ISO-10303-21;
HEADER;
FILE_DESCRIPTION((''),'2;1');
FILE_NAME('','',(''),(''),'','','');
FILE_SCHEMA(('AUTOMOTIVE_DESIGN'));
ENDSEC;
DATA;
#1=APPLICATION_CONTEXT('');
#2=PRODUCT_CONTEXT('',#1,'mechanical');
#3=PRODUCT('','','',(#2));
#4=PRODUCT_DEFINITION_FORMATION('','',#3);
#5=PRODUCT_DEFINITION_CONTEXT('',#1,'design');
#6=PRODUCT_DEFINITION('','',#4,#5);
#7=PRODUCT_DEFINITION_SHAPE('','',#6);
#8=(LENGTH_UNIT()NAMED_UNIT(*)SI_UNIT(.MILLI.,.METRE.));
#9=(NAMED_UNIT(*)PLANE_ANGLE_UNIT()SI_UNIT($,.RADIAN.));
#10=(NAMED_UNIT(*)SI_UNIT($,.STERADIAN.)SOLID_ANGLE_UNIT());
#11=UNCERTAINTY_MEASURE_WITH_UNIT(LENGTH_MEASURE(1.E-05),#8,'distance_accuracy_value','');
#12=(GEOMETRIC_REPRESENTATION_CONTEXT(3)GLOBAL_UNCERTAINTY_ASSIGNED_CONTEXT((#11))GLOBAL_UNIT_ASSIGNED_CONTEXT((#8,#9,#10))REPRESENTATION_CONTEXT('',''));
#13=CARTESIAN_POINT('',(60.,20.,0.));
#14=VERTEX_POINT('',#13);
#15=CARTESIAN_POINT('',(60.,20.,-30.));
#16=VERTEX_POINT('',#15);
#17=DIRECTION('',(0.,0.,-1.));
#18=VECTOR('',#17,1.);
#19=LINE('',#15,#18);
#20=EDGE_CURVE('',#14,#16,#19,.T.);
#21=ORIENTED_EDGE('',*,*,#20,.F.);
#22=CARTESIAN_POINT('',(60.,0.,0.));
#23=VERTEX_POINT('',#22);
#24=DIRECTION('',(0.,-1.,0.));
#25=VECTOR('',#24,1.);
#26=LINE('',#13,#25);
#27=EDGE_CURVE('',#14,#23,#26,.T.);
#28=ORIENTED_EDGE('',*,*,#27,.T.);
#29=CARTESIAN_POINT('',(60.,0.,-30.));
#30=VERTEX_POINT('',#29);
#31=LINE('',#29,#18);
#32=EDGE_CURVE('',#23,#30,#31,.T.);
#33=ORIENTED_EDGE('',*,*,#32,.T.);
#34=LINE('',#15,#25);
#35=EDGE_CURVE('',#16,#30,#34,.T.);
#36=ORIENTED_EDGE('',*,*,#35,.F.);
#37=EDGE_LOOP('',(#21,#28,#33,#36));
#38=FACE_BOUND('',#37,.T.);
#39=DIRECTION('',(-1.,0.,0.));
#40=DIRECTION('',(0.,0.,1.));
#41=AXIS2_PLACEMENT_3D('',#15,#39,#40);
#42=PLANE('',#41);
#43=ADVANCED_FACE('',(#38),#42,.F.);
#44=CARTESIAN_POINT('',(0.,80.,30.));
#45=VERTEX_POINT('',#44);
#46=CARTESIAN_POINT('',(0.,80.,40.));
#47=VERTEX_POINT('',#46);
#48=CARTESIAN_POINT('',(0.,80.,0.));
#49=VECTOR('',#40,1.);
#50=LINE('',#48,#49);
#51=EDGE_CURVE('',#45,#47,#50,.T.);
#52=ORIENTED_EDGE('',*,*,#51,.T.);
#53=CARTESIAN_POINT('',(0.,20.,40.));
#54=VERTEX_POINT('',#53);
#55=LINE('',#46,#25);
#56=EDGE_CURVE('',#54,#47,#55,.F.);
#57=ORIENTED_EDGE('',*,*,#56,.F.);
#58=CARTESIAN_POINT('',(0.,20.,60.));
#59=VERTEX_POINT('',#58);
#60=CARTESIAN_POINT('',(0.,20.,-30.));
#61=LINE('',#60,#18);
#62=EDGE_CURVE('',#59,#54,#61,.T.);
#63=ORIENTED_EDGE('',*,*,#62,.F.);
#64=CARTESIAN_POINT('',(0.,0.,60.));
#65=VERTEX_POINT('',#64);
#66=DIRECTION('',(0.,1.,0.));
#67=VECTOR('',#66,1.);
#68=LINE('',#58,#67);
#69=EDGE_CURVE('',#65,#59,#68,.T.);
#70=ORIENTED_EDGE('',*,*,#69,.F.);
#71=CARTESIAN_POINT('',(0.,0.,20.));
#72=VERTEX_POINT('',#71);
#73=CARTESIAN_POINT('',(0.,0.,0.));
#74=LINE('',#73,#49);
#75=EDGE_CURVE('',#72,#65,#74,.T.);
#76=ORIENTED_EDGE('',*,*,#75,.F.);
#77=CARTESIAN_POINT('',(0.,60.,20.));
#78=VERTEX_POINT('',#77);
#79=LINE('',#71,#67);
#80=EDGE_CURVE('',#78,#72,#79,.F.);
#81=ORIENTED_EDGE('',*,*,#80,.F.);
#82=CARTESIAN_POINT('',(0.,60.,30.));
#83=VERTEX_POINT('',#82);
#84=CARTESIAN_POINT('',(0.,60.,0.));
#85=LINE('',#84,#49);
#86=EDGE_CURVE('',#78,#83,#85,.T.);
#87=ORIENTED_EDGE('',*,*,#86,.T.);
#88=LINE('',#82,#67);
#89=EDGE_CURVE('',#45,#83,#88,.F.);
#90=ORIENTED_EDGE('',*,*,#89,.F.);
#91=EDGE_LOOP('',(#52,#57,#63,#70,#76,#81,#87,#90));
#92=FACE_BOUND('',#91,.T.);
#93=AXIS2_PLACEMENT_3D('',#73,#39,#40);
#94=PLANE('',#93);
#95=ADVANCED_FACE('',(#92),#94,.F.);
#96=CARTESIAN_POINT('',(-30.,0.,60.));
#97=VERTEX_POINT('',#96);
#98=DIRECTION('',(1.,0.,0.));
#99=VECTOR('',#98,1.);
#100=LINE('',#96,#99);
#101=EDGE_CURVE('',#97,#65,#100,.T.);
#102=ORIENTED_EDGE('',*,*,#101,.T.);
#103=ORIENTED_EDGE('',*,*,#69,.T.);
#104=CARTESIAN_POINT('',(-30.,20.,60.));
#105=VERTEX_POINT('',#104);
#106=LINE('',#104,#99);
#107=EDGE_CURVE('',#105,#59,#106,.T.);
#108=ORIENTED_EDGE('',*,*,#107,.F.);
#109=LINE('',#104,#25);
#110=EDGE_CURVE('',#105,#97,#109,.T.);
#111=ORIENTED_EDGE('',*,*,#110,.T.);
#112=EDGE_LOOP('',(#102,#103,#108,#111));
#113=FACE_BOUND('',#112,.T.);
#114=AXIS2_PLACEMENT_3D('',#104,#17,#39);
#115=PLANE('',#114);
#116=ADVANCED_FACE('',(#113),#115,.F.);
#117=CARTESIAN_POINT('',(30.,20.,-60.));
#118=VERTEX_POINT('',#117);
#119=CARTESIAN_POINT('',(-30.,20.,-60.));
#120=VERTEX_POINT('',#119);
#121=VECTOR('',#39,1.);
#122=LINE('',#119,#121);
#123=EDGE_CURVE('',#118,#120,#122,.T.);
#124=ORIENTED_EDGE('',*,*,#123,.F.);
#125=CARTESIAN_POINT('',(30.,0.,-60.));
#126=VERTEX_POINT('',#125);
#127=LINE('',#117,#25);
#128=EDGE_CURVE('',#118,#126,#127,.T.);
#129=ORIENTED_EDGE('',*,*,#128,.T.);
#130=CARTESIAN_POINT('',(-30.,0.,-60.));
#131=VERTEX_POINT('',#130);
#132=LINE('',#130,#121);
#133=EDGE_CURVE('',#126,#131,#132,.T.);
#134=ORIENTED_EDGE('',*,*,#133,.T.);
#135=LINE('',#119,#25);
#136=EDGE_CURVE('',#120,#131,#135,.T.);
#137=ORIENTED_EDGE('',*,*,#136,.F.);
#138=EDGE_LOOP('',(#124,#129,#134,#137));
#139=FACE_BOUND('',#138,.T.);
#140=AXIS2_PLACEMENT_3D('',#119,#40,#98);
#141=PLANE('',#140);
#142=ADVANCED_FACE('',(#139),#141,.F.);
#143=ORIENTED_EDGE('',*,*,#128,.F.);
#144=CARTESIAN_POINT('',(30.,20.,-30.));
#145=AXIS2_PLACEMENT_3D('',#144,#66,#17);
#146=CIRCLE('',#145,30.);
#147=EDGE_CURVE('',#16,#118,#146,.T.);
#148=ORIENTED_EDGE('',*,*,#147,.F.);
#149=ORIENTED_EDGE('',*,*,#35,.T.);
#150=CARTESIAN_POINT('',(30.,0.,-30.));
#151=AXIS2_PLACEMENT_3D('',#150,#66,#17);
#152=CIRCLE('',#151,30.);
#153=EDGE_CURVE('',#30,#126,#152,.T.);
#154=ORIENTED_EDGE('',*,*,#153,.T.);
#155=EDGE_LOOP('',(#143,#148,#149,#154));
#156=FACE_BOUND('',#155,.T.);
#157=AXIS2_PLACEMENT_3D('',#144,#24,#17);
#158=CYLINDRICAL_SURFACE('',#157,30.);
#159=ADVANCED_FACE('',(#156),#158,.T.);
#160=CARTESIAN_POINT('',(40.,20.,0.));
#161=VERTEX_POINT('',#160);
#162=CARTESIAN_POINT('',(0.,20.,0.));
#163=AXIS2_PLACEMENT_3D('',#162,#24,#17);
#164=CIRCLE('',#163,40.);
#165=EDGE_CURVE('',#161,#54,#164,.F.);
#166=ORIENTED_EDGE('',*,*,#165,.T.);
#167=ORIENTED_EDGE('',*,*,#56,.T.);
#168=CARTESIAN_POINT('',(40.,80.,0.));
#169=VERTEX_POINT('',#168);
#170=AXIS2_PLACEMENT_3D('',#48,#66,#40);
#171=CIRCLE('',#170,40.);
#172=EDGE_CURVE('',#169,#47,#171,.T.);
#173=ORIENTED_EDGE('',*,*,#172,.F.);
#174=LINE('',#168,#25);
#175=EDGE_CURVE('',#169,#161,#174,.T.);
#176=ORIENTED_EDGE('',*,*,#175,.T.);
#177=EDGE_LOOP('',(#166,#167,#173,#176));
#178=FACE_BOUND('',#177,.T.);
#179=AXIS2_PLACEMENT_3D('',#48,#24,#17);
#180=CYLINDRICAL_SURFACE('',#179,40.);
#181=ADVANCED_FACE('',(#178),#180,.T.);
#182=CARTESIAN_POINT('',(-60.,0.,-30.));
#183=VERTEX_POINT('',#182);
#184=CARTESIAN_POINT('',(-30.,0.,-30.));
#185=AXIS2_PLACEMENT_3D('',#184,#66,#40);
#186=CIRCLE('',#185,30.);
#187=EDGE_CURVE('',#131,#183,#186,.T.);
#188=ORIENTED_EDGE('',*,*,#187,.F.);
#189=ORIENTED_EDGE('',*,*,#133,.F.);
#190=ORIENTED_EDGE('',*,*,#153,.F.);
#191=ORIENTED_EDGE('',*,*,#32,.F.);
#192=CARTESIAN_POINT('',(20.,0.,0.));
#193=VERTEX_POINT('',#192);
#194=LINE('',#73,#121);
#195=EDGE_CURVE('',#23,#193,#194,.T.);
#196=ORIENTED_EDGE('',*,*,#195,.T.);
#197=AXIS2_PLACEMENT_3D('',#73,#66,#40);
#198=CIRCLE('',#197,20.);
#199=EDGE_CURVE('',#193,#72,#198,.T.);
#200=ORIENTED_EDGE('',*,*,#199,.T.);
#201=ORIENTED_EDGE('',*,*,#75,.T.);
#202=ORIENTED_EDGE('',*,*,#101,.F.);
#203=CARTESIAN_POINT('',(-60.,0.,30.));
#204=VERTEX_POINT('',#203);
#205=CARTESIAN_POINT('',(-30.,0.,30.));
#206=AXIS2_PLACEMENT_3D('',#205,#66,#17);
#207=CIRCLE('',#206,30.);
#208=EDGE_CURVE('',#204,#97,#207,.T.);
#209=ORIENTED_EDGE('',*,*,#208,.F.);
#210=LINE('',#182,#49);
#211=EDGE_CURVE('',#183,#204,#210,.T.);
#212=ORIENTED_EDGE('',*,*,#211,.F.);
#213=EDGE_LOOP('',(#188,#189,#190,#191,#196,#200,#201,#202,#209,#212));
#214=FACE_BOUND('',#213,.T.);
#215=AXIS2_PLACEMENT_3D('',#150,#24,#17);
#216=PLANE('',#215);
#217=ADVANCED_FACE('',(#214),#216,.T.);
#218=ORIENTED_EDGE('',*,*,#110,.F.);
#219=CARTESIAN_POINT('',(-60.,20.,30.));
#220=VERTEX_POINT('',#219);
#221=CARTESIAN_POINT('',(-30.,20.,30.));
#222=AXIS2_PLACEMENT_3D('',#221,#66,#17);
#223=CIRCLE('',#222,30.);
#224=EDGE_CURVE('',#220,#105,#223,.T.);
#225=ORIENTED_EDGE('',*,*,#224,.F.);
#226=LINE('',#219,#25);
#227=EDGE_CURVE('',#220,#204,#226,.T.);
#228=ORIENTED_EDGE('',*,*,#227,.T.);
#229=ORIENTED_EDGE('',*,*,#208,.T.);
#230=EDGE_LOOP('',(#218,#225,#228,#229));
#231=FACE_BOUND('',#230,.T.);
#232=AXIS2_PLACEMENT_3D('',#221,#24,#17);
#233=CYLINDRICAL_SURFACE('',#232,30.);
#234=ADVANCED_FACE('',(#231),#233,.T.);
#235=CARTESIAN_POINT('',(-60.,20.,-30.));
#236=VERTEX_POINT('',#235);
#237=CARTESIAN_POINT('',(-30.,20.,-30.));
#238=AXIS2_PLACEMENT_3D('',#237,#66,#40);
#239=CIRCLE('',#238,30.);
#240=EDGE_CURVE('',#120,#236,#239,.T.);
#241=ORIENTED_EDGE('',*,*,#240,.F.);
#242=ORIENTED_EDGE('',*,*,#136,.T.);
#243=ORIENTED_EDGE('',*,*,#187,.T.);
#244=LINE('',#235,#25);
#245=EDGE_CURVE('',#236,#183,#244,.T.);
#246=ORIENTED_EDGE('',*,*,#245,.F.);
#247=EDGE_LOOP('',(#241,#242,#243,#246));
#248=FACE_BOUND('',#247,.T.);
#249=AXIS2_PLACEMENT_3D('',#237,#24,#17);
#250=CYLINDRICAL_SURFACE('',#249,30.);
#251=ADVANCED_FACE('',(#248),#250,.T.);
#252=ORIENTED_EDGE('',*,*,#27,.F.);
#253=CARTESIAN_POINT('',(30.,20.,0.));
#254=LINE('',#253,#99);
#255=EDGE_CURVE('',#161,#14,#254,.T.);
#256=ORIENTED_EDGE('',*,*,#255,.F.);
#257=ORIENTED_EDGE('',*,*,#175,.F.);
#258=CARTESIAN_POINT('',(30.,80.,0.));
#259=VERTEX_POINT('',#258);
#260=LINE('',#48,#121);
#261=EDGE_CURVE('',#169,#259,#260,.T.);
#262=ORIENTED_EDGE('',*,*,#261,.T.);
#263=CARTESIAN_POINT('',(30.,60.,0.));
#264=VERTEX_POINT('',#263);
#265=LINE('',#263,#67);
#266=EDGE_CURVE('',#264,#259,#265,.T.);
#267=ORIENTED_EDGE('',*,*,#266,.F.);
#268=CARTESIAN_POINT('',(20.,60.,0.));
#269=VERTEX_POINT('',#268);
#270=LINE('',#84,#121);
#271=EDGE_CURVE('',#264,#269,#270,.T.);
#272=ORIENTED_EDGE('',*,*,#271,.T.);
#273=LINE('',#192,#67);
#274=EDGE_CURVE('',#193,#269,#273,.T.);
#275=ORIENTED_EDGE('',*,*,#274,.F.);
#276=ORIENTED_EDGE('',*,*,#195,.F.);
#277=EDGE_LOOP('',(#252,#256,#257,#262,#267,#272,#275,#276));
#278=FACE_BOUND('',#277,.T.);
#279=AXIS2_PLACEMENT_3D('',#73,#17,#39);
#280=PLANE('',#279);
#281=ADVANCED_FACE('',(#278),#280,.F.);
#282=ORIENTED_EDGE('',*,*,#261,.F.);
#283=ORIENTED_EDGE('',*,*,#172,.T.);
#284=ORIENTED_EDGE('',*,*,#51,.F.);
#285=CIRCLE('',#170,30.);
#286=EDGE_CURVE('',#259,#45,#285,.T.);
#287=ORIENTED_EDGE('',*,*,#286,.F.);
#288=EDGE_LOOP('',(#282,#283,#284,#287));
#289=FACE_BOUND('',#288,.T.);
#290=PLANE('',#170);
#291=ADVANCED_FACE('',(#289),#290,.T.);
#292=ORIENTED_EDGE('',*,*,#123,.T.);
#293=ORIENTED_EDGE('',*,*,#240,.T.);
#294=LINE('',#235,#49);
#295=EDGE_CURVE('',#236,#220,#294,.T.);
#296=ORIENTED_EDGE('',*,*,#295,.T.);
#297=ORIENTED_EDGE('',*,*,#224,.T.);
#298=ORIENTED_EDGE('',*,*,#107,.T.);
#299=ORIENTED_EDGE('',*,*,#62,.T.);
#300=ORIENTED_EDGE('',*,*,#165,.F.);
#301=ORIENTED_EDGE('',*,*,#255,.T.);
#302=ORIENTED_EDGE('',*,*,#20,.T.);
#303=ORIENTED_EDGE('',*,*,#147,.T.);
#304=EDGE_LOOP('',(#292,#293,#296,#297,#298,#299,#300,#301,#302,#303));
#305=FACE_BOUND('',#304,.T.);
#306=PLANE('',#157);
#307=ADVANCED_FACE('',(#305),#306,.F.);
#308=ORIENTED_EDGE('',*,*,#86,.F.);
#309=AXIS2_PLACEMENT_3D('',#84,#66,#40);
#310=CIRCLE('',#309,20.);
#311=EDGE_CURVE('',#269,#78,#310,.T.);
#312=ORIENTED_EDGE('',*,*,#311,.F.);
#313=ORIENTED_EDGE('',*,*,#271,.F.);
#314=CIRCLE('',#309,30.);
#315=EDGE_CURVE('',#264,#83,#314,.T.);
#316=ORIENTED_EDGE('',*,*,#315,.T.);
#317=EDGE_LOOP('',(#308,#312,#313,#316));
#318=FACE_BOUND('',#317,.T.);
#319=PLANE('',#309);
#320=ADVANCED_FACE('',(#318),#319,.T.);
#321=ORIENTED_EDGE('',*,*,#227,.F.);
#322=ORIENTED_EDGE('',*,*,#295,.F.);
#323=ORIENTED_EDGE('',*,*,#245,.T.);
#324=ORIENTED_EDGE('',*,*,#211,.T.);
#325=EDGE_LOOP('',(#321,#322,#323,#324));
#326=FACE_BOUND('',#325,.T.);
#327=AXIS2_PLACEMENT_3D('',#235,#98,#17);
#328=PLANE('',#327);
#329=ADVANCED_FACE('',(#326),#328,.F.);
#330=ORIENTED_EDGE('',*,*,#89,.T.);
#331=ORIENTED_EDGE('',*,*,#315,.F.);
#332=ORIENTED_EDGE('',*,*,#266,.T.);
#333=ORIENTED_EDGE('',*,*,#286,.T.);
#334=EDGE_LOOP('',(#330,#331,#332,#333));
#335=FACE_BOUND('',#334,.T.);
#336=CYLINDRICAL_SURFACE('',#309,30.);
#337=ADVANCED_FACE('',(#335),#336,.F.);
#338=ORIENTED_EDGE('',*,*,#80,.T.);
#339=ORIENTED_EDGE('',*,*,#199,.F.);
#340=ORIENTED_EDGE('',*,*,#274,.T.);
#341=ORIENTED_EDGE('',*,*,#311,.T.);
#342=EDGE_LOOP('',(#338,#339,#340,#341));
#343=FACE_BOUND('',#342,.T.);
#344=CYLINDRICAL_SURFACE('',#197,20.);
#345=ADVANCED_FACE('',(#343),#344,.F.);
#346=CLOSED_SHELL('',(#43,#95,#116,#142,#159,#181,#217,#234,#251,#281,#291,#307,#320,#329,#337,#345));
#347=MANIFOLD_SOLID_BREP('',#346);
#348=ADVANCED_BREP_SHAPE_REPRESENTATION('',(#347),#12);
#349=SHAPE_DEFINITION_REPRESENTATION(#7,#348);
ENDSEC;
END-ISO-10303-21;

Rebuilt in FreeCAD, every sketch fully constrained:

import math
import FreeCAD as App
import Part
import Sketcher

V = App.Vector

doc = App.newDocument("Part")
body = doc.addObject("PartDesign::Body", "Body")

# Sketch on XZ plane
sketch1 = body.newObject("Sketcher::SketchObject", "Sketch")
sketch1.AttachmentSupport = (doc.getObject("XZ_Plane"), [""])
sketch1.MapMode = "FlatFace"
sketch1.addGeometry([
    Part.LineSegment(V(30, -60, 0), V(-30, -60, 0)),  # 0
    Part.ArcOfCircle(Part.Circle(V(-30, -30, 0), V(0, 0, 1), 30), math.radians(180), math.radians(270)),  # 1
    Part.LineSegment(V(-60, -30, 0), V(-60, 30, 0)),  # 2
    Part.ArcOfCircle(Part.Circle(V(-30, 30, 0), V(0, 0, 1), 30), math.radians(90), math.radians(180)),  # 3
    Part.LineSegment(V(-30, 60, 0), V(30, 60, 0)),  # 4
    Part.ArcOfCircle(Part.Circle(V(30, 30, 0), V(0, 0, 1), 30), math.radians(0), math.radians(90)),  # 5
    Part.LineSegment(V(60, 30, 0), V(60, -30, 0)),  # 6
    Part.ArcOfCircle(Part.Circle(V(30, -30, 0), V(0, 0, 1), 30), math.radians(-90), math.radians(0)),  # 7
], False)
sketch1.addConstraint([
    Sketcher.Constraint("Tangent", 0, 2, 1, 2),
    Sketcher.Constraint("Tangent", 1, 1, 2, 1),
    Sketcher.Constraint("Tangent", 2, 2, 3, 2),
    Sketcher.Constraint("Tangent", 3, 1, 4, 1),
    Sketcher.Constraint("Tangent", 4, 2, 5, 2),
    Sketcher.Constraint("Tangent", 5, 1, 6, 1),
    Sketcher.Constraint("Tangent", 6, 2, 7, 2),
    Sketcher.Constraint("Tangent", 7, 1, 0, 1),
    Sketcher.Constraint("Horizontal", 0),
    Sketcher.Constraint("Vertical", 2),
    Sketcher.Constraint("Horizontal", 4),
    Sketcher.Constraint("Vertical", 6),
    Sketcher.Constraint("Equal", 1, 3),
    Sketcher.Constraint("Equal", 3, 5),
    Sketcher.Constraint("Equal", 5, 7),
    Sketcher.Constraint("Symmetric", 1, 3, 5, 3, -1, 1),
    Sketcher.Constraint("Equal", 4, 2),
    Sketcher.Constraint("Radius", 1, 30.0),
    Sketcher.Constraint("DistanceX", 0, 2, 0, 1, 60.0),
])
pad1 = body.newObject("PartDesign::Pad", "Pad")
pad1.Profile = sketch1
pad1.Length = 20
pad1.Reversed = True

# Sketch on XZ plane
sketch2 = body.newObject("Sketcher::SketchObject", "Sketch001")
sketch2.AttachmentSupport = (doc.getObject("XZ_Plane"), [""])
sketch2.MapMode = "FlatFace"
sketch2.AttachmentOffset = App.Placement(V(0, 0, -20), App.Rotation())
sketch2.addGeometry(Part.Circle(V(0, 0, 0), V(0, 0, 1), 40), False)
sketch2.addConstraint([
    Sketcher.Constraint("Coincident", 0, 3, -1, 1),
    Sketcher.Constraint("Diameter", 0, 80.0),
])
pad2 = body.newObject("PartDesign::Pad", "Pad001")
pad2.Profile = sketch2
pad2.Length = 60
pad2.Reversed = True

# Sketch on XZ plane
sketch3 = body.newObject("Sketcher::SketchObject", "Sketch002")
sketch3.AttachmentSupport = (doc.getObject("XZ_Plane"), [""])
sketch3.MapMode = "FlatFace"
sketch3.AttachmentOffset = App.Placement(V(0, 0, -80), App.Rotation())
sketch3.addGeometry(Part.Circle(V(0, 0, 0), V(0, 0, 1), 30), False)
sketch3.addConstraint([
    Sketcher.Constraint("Coincident", 0, 3, -1, 1),
    Sketcher.Constraint("Diameter", 0, 60.0),
])
pocket1 = body.newObject("PartDesign::Pocket", "Pocket")
pocket1.Profile = sketch3
pocket1.Length = 20
pocket1.Reversed = True

# Sketch on XZ plane
sketch4 = body.newObject("Sketcher::SketchObject", "Sketch003")
sketch4.AttachmentSupport = (doc.getObject("XZ_Plane"), [""])
sketch4.MapMode = "FlatFace"
sketch4.AttachmentOffset = App.Placement(V(0, 0, -60), App.Rotation())
sketch4.addGeometry(Part.Circle(V(0, 0, 0), V(0, 0, 1), 20), False)
sketch4.addConstraint([
    Sketcher.Constraint("Coincident", 0, 3, -1, 1),
    Sketcher.Constraint("Diameter", 0, 40.0),
])
pocket2 = body.newObject("PartDesign::Pocket", "Pocket001")
pocket2.Profile = sketch4
pocket2.Type = "ThroughAll"
pocket2.Reversed = True

# Sketch on XZ plane
sketch5 = body.newObject("Sketcher::SketchObject", "Sketch004")
sketch5.AttachmentSupport = (doc.getObject("XZ_Plane"), [""])
sketch5.MapMode = "FlatFace"
sketch5.AttachmentOffset = App.Placement(V(0, 0, -80), App.Rotation())
sketch5.addGeometry([
    Part.LineSegment(V(0, 0, 0), V(0, 65, 0)),
    Part.LineSegment(V(0, 65, 0), V(72, 65, 0)),
    Part.LineSegment(V(72, 65, 0), V(72, 0, 0)),
    Part.LineSegment(V(72, 0, 0), V(0, 0, 0)),
], False)
sketch5.addConstraint([
    Sketcher.Constraint("Coincident", 0, 2, 1, 1),
    Sketcher.Constraint("Coincident", 1, 2, 2, 1),
    Sketcher.Constraint("Coincident", 2, 2, 3, 1),
    Sketcher.Constraint("Coincident", 3, 2, 0, 1),
    Sketcher.Constraint("Vertical", 0),
    Sketcher.Constraint("Horizontal", 1),
    Sketcher.Constraint("Vertical", 2),
    Sketcher.Constraint("Horizontal", 3),
    Sketcher.Constraint("Coincident", 3, 2, -1, 1),
    Sketcher.Constraint("DistanceX", 1, 1, 1, 2, 71.704079),
    Sketcher.Constraint("DistanceY", 0, 1, 0, 2, 65.206875),
])
pocket3 = body.newObject("PartDesign::Pocket", "Pocket002")
pocket3.Profile = sketch5
pocket3.Type = "ThroughAll"
pocket3.Reversed = True

doc.recompute()
